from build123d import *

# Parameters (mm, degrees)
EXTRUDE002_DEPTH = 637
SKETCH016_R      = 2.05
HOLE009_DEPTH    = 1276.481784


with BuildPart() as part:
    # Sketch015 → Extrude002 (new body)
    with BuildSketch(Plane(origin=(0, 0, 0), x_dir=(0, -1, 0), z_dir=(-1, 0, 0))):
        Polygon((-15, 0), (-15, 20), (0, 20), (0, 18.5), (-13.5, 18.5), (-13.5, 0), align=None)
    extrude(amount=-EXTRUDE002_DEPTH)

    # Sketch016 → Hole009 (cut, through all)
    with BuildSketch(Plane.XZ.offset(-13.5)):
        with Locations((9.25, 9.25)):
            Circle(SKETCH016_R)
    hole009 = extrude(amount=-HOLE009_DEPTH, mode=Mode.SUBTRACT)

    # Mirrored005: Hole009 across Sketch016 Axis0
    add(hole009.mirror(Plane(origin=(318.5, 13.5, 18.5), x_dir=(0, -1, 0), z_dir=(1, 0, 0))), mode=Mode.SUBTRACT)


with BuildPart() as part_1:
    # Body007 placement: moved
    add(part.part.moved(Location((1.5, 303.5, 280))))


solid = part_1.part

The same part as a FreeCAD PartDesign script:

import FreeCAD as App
import Part
import Sketcher

V = App.Vector


def add_polygon(sketch, points):
    """Adds a closed chain of lines whose ends are joined by coincident constraints."""
    first, n = sketch.GeometryCount, len(points)
    for a, b in zip(points, points[1:] + points[:1]):
        sketch.addGeometry(Part.LineSegment(App.Vector(*a, 0), App.Vector(*b, 0)), False)
    for i in range(n):
        sketch.addConstraint(Sketcher.Constraint("Coincident", first + i, 2, first + (i + 1) % n, 1))

doc = App.newDocument("Part")
body = doc.addObject("PartDesign::Body", "Body")

# Sketch on YZ plane
sketch1 = body.newObject("Sketcher::SketchObject", "Sketch")
sketch1.AttachmentSupport = (doc.getObject("YZ_Plane"), [""])
sketch1.MapMode = "FlatFace"
add_polygon(sketch1, [(15, 20), (15, 0), (13.5, 0), (13.5, 18.5), (0, 18.5), (0, 20)])  # lines 0-5
sketch1.addConstraint(Sketcher.Constraint("Vertical", 0))
sketch1.addConstraint(Sketcher.Constraint("Horizontal", 1))
sketch1.addConstraint(Sketcher.Constraint("Vertical", 2))
sketch1.addConstraint(Sketcher.Constraint("Horizontal", 3))
sketch1.addConstraint(Sketcher.Constraint("Vertical", 4))
sketch1.addConstraint(Sketcher.Constraint("Horizontal", 5))
sketch1.addConstraint(Sketcher.Constraint("PointOnObject", 0, 2, -1))
sketch1.addConstraint(Sketcher.Constraint("PointOnObject", 3, 2, -2))
sketch1.addConstraint(Sketcher.Constraint("Equal", 1, 4))
sketch1.addConstraint(Sketcher.Constraint("DistanceX", 5, 1, 5, 2, 15.0))
sketch1.addConstraint(Sketcher.Constraint("DistanceY", 0, 2, 0, 1, 20.0))
sketch1.addConstraint(Sketcher.Constraint("DistanceX", 1, 2, 1, 1, 1.5))
pad1 = body.newObject("PartDesign::Pad", "Pad")
pad1.Profile = sketch1
pad1.Length = 637

# Sketch on XZ plane
sketch2 = body.newObject("Sketcher::SketchObject", "Sketch001")
sketch2.AttachmentSupport = (doc.getObject("XZ_Plane"), [""])
sketch2.MapMode = "FlatFace"
sketch2.AttachmentOffset = App.Placement(V(0, 0, -13.5), App.Rotation())
sketch2.addGeometry(Part.Circle(V(9.25, 9.25, 0), V(0, 0, 1), 2.05), False)
sketch2.addConstraint(Sketcher.Constraint("Diameter", 0, 4.1))
sketch2.addConstraint(Sketcher.Constraint("DistanceX", -1, 1, 0, 3, 9.25))
sketch2.addConstraint(Sketcher.Constraint("DistanceY", -1, 1, 0, 3, 9.25))
pocket1 = body.newObject("PartDesign::Pocket", "Pocket")
pocket1.Profile = sketch2
pocket1.Type = "ThroughAll"
doc.recompute()

datumplane = body.newObject("PartDesign::Plane", "DatumPlane")
datumplane.AttachmentSupport = (doc.getObject("YZ_Plane"), [""])
datumplane.MapMode = "FlatFace"
datumplane.AttachmentOffset = App.Placement(V(0, 0, 318.5), App.Rotation())
mirrored = body.newObject("PartDesign::Mirrored", "Mirrored")
mirrored.Originals = [pocket1]
mirrored.MirrorPlane = (datumplane, [""])
body.Tip = mirrored
body2 = doc.addObject("PartDesign::Body", "Body001")
doc.recompute()

body.Placement = App.Placement(V(1.5, 303.5, 280), App.Rotation(V(0, 0, 1), 0))
boolean = body2.newObject("PartDesign::Boolean", "Boolean")
boolean.Type = "Fuse"
boolean.addObjects([body])

doc.recompute()
